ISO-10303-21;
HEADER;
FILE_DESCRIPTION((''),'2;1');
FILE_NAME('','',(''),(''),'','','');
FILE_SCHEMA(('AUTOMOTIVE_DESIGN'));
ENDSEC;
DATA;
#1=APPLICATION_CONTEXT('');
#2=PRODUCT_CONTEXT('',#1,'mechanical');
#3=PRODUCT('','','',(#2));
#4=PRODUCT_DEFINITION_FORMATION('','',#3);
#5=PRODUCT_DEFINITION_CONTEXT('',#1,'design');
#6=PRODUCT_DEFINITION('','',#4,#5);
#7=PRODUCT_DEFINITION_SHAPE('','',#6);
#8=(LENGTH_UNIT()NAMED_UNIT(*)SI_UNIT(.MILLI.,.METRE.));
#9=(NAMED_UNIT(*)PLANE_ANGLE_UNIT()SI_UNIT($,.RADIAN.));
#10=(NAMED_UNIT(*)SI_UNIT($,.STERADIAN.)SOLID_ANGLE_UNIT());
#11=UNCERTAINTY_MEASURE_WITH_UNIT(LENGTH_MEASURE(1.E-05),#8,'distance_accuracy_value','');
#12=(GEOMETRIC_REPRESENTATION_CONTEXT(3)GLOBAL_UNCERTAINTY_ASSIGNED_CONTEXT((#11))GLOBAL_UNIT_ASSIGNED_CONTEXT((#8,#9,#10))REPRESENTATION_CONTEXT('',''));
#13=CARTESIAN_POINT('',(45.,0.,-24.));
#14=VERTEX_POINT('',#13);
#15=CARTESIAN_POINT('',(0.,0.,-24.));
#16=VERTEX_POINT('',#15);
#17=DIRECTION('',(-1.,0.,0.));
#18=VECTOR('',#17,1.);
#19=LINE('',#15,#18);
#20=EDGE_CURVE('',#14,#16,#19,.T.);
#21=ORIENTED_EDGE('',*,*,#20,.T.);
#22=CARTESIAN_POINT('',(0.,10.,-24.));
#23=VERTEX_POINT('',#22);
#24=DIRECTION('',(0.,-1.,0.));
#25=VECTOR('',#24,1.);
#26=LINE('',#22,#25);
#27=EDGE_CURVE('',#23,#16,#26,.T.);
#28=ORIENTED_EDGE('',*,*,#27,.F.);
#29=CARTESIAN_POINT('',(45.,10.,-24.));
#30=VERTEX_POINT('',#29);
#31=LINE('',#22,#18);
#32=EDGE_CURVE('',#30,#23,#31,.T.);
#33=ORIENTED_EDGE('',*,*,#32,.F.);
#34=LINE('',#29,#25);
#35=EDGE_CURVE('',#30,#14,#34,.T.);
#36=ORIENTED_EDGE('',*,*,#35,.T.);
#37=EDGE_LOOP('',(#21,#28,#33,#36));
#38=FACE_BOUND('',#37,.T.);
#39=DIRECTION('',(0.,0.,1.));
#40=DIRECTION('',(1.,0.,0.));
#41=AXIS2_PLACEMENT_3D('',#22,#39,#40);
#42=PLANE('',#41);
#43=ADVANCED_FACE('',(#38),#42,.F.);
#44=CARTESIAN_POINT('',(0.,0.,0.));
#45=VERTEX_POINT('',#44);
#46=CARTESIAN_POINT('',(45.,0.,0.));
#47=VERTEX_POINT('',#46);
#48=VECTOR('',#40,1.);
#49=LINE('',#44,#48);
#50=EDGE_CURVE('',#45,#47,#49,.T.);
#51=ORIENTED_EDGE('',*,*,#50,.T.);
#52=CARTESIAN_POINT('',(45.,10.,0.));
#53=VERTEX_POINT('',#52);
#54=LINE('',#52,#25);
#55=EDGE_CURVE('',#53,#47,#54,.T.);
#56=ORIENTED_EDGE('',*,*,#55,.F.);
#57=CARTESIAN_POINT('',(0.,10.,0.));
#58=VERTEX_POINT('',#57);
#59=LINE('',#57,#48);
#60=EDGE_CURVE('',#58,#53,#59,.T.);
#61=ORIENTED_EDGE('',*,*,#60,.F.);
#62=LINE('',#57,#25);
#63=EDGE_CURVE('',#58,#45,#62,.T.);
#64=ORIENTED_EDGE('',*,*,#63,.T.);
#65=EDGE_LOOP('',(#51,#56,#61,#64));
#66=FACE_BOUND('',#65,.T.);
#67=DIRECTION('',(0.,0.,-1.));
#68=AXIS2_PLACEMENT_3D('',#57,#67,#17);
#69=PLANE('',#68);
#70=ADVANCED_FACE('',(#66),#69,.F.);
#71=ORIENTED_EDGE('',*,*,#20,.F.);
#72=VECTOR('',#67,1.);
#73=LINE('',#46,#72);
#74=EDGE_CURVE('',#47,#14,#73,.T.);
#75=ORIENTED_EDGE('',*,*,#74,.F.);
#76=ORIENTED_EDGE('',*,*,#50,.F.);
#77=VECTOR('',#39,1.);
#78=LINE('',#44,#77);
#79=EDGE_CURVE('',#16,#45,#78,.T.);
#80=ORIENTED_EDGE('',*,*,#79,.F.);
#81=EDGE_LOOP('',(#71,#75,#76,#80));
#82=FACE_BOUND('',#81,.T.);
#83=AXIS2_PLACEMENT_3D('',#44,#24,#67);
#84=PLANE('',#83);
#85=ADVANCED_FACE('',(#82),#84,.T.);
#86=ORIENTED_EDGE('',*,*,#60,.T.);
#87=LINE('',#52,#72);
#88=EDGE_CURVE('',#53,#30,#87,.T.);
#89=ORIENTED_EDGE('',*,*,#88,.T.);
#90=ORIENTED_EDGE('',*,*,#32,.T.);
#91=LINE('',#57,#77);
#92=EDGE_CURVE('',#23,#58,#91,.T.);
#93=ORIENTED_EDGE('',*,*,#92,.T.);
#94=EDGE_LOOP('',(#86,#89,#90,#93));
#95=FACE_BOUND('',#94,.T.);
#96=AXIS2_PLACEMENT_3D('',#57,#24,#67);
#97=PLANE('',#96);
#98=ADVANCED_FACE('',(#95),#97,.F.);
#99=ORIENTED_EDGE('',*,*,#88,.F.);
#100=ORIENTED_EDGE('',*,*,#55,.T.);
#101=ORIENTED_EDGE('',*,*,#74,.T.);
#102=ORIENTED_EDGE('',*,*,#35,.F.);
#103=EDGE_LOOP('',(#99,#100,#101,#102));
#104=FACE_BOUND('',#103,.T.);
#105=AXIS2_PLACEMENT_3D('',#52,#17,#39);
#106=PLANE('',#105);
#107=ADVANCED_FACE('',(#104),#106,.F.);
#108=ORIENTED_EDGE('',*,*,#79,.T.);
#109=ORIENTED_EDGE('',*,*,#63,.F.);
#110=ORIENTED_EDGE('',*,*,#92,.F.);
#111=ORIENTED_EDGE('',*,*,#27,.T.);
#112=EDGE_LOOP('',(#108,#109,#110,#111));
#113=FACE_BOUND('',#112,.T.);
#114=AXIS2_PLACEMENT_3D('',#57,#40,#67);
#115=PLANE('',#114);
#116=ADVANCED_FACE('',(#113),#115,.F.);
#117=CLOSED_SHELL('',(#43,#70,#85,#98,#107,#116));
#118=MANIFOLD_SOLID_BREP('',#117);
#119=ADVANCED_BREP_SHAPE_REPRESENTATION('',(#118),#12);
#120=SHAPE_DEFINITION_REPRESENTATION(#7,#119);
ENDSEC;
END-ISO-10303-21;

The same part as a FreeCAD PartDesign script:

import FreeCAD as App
import Part
import Sketcher

V = App.Vector

doc = App.newDocument("Part")
body = doc.addObject("PartDesign::Body", "Body")

# Sketch on XZ plane
sketch1 = body.newObject("Sketcher::SketchObject", "Sketch")
sketch1.AttachmentSupport = (doc.getObject("XZ_Plane"), [""])
sketch1.MapMode = "FlatFace"
sketch1.addGeometry(Part.LineSegment(V(0, -24, 0), V(0, 0, 0)), False)
sketch1.addGeometry(Part.LineSegment(V(0, 0, 0), V(45, 0, 0)), False)
sketch1.addGeometry(Part.LineSegment(V(45, 0, 0), V(45, -24, 0)), False)
sketch1.addGeometry(Part.LineSegment(V(45, -24, 0), V(0, -24, 0)), False)
sketch1.addConstraint(Sketcher.Constraint("Coincident", 0, 2, 1, 1))
sketch1.addConstraint(Sketcher.Constraint("Coincident", 1, 2, 2, 1))
sketch1.addConstraint(Sketcher.Constraint("Coincident", 2, 2, 3, 1))
sketch1.addConstraint(Sketcher.Constraint("Coincident", 3, 2, 0, 1))
sketch1.addConstraint(Sketcher.Constraint("Vertical", 0))
sketch1.addConstraint(Sketcher.Constraint("Horizontal", 1))
sketch1.addConstraint(Sketcher.Constraint("Vertical", 2))
sketch1.addConstraint(Sketcher.Constraint("Horizontal", 3))
sketch1.addConstraint(Sketcher.Constraint("Coincident", 0, 2, -1, 1))
sketch1.addConstraint(Sketcher.Constraint("DistanceX", 1, 1, 1, 2, 45.0))
sketch1.addConstraint(Sketcher.Constraint("DistanceY", 0, 1, 0, 2, 24.0))
pad1 = body.newObject("PartDesign::Pad", "Pad")
pad1.Profile = sketch1
pad1.Length = 10
pad1.Reversed = True

doc.recompute()
